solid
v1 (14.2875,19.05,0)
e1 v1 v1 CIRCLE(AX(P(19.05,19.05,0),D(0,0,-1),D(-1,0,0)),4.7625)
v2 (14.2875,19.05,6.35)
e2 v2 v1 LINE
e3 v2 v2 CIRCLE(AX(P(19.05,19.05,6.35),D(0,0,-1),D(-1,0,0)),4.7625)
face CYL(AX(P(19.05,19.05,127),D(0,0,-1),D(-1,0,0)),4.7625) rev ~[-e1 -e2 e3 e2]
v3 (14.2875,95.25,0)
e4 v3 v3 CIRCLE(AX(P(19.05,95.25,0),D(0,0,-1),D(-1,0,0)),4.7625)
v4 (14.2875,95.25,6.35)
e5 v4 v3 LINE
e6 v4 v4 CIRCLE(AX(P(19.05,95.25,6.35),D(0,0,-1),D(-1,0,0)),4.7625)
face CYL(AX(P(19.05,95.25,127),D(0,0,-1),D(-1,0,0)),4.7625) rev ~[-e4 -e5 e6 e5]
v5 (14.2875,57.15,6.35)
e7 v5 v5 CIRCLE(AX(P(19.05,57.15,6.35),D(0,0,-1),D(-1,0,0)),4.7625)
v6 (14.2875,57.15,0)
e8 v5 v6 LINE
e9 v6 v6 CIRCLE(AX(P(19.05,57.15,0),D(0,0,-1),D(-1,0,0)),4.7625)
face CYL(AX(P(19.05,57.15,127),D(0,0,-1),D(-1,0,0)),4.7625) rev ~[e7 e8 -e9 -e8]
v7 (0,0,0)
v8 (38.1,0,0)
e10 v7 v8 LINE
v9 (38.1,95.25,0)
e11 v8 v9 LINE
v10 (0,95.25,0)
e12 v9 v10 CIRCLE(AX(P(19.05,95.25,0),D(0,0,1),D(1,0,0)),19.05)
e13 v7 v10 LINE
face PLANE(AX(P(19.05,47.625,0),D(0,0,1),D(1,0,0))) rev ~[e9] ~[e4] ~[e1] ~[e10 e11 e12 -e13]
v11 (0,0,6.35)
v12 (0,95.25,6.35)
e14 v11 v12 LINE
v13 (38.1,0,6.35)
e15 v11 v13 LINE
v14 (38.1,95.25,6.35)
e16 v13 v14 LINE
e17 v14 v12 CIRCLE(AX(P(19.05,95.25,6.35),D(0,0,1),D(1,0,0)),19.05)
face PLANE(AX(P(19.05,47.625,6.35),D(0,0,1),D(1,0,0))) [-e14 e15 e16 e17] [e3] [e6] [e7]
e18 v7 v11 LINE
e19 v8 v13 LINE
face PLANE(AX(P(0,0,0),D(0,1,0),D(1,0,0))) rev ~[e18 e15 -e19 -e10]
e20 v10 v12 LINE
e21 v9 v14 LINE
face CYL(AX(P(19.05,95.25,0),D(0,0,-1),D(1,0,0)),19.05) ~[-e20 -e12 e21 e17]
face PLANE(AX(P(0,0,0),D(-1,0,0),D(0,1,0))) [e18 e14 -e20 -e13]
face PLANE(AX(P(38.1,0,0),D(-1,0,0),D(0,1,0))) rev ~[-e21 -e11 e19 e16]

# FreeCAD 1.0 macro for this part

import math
import FreeCAD as App
import Part
import Sketcher
Q = App.Units.Quantity

doc = App.newDocument("Part")
body = doc.addObject("PartDesign::Body", "Body")

sketch1 = body.newObject("Sketcher::SketchObject", "Sketch")
sketch1.AttachmentSupport = (doc.getObject("XY_Plane"), [""])
sketch1.MapMode = "FlatFace"
sketch1.addGeometry([
    Part.LineSegment(App.Vector(0, 95, 0), App.Vector(0, 0, 0)),
    Part.LineSegment(App.Vector(0, 0, 0), App.Vector(38, 0, 0)),
    Part.LineSegment(App.Vector(38, 0, 0), App.Vector(38, 95, 0)),
    Part.ArcOfCircle(Part.Circle(App.Vector(19, 95, 0), App.Vector(0, 0, 1), 19), math.radians(0), math.radians(180)),
], False)
sketch1.addConstraint([
    Sketcher.Constraint("Coincident", 0, 2, 1, 1),
    Sketcher.Constraint("Coincident", 1, 2, 2, 1),
    Sketcher.Constraint("Tangent", 2, 2, 3, 1),
    Sketcher.Constraint("Tangent", 3, 2, 0, 1),
    Sketcher.Constraint("Vertical", 0),
    Sketcher.Constraint("Horizontal", 1),
    Sketcher.Constraint("Vertical", 2),
    Sketcher.Constraint("Coincident", 0, 2, -1, 1),
    Sketcher.Constraint("Radius", 3, Q("0.75 in")),
    Sketcher.Constraint("DistanceY", 0, 2, 0, 1, Q("3.75 in")),
])
pad1 = body.newObject("PartDesign::Pad", "Pad")
pad1.Profile = sketch1
pad1.Length = Q("0.25 in")

sketch2 = body.newObject("Sketcher::SketchObject", "Sketch001")
sketch2.AttachmentSupport = (doc.getObject("XY_Plane"), [""])
sketch2.MapMode = "FlatFace"
sketch2.AttachmentOffset = App.Placement(App.Vector(0, 0, 0.25 * 25.4), App.Rotation())
sketch2.addGeometry([
    Part.Circle(App.Vector(19.1, 95.2, 0), App.Vector(0, 0, 1), 4.8),
    Part.Circle(App.Vector(19.1, 57.1, 0), App.Vector(0, 0, 1), 4.8),
    Part.Circle(App.Vector(19.1, 19.1, 0), App.Vector(0, 0, 1), 4.8),
], False)
sketch2.addConstraint([
    Sketcher.Constraint("Equal", 0, 1),
    Sketcher.Constraint("Equal", 1, 2),
    Sketcher.Constraint("Vertical", 0, 3, 1, 3),
    Sketcher.Constraint("Vertical", 1, 3, 2, 3),
    Sketcher.Constraint("Diameter", 0, Q("0.375 in")),
    Sketcher.Constraint("DistanceY", 2, 3, 0, 3, Q("3 in")),
    Sketcher.Constraint("DistanceY", 1, 3, 0, 3, Q("1.5 in")),
    Sketcher.Constraint("DistanceX", -1, 1, 0, 3, Q("0.75 in")),
    Sketcher.Constraint("DistanceY", -1, 1, 0, 3, Q("3.75 in")),
])
doc.recompute()
hole = body.newObject("PartDesign::Hole", "Hole")
hole.Profile = sketch2
hole.ThreadType = "None"
hole.Diameter = Q("0.375 in")
hole.DepthType = "ThroughAll"

doc.recompute()
